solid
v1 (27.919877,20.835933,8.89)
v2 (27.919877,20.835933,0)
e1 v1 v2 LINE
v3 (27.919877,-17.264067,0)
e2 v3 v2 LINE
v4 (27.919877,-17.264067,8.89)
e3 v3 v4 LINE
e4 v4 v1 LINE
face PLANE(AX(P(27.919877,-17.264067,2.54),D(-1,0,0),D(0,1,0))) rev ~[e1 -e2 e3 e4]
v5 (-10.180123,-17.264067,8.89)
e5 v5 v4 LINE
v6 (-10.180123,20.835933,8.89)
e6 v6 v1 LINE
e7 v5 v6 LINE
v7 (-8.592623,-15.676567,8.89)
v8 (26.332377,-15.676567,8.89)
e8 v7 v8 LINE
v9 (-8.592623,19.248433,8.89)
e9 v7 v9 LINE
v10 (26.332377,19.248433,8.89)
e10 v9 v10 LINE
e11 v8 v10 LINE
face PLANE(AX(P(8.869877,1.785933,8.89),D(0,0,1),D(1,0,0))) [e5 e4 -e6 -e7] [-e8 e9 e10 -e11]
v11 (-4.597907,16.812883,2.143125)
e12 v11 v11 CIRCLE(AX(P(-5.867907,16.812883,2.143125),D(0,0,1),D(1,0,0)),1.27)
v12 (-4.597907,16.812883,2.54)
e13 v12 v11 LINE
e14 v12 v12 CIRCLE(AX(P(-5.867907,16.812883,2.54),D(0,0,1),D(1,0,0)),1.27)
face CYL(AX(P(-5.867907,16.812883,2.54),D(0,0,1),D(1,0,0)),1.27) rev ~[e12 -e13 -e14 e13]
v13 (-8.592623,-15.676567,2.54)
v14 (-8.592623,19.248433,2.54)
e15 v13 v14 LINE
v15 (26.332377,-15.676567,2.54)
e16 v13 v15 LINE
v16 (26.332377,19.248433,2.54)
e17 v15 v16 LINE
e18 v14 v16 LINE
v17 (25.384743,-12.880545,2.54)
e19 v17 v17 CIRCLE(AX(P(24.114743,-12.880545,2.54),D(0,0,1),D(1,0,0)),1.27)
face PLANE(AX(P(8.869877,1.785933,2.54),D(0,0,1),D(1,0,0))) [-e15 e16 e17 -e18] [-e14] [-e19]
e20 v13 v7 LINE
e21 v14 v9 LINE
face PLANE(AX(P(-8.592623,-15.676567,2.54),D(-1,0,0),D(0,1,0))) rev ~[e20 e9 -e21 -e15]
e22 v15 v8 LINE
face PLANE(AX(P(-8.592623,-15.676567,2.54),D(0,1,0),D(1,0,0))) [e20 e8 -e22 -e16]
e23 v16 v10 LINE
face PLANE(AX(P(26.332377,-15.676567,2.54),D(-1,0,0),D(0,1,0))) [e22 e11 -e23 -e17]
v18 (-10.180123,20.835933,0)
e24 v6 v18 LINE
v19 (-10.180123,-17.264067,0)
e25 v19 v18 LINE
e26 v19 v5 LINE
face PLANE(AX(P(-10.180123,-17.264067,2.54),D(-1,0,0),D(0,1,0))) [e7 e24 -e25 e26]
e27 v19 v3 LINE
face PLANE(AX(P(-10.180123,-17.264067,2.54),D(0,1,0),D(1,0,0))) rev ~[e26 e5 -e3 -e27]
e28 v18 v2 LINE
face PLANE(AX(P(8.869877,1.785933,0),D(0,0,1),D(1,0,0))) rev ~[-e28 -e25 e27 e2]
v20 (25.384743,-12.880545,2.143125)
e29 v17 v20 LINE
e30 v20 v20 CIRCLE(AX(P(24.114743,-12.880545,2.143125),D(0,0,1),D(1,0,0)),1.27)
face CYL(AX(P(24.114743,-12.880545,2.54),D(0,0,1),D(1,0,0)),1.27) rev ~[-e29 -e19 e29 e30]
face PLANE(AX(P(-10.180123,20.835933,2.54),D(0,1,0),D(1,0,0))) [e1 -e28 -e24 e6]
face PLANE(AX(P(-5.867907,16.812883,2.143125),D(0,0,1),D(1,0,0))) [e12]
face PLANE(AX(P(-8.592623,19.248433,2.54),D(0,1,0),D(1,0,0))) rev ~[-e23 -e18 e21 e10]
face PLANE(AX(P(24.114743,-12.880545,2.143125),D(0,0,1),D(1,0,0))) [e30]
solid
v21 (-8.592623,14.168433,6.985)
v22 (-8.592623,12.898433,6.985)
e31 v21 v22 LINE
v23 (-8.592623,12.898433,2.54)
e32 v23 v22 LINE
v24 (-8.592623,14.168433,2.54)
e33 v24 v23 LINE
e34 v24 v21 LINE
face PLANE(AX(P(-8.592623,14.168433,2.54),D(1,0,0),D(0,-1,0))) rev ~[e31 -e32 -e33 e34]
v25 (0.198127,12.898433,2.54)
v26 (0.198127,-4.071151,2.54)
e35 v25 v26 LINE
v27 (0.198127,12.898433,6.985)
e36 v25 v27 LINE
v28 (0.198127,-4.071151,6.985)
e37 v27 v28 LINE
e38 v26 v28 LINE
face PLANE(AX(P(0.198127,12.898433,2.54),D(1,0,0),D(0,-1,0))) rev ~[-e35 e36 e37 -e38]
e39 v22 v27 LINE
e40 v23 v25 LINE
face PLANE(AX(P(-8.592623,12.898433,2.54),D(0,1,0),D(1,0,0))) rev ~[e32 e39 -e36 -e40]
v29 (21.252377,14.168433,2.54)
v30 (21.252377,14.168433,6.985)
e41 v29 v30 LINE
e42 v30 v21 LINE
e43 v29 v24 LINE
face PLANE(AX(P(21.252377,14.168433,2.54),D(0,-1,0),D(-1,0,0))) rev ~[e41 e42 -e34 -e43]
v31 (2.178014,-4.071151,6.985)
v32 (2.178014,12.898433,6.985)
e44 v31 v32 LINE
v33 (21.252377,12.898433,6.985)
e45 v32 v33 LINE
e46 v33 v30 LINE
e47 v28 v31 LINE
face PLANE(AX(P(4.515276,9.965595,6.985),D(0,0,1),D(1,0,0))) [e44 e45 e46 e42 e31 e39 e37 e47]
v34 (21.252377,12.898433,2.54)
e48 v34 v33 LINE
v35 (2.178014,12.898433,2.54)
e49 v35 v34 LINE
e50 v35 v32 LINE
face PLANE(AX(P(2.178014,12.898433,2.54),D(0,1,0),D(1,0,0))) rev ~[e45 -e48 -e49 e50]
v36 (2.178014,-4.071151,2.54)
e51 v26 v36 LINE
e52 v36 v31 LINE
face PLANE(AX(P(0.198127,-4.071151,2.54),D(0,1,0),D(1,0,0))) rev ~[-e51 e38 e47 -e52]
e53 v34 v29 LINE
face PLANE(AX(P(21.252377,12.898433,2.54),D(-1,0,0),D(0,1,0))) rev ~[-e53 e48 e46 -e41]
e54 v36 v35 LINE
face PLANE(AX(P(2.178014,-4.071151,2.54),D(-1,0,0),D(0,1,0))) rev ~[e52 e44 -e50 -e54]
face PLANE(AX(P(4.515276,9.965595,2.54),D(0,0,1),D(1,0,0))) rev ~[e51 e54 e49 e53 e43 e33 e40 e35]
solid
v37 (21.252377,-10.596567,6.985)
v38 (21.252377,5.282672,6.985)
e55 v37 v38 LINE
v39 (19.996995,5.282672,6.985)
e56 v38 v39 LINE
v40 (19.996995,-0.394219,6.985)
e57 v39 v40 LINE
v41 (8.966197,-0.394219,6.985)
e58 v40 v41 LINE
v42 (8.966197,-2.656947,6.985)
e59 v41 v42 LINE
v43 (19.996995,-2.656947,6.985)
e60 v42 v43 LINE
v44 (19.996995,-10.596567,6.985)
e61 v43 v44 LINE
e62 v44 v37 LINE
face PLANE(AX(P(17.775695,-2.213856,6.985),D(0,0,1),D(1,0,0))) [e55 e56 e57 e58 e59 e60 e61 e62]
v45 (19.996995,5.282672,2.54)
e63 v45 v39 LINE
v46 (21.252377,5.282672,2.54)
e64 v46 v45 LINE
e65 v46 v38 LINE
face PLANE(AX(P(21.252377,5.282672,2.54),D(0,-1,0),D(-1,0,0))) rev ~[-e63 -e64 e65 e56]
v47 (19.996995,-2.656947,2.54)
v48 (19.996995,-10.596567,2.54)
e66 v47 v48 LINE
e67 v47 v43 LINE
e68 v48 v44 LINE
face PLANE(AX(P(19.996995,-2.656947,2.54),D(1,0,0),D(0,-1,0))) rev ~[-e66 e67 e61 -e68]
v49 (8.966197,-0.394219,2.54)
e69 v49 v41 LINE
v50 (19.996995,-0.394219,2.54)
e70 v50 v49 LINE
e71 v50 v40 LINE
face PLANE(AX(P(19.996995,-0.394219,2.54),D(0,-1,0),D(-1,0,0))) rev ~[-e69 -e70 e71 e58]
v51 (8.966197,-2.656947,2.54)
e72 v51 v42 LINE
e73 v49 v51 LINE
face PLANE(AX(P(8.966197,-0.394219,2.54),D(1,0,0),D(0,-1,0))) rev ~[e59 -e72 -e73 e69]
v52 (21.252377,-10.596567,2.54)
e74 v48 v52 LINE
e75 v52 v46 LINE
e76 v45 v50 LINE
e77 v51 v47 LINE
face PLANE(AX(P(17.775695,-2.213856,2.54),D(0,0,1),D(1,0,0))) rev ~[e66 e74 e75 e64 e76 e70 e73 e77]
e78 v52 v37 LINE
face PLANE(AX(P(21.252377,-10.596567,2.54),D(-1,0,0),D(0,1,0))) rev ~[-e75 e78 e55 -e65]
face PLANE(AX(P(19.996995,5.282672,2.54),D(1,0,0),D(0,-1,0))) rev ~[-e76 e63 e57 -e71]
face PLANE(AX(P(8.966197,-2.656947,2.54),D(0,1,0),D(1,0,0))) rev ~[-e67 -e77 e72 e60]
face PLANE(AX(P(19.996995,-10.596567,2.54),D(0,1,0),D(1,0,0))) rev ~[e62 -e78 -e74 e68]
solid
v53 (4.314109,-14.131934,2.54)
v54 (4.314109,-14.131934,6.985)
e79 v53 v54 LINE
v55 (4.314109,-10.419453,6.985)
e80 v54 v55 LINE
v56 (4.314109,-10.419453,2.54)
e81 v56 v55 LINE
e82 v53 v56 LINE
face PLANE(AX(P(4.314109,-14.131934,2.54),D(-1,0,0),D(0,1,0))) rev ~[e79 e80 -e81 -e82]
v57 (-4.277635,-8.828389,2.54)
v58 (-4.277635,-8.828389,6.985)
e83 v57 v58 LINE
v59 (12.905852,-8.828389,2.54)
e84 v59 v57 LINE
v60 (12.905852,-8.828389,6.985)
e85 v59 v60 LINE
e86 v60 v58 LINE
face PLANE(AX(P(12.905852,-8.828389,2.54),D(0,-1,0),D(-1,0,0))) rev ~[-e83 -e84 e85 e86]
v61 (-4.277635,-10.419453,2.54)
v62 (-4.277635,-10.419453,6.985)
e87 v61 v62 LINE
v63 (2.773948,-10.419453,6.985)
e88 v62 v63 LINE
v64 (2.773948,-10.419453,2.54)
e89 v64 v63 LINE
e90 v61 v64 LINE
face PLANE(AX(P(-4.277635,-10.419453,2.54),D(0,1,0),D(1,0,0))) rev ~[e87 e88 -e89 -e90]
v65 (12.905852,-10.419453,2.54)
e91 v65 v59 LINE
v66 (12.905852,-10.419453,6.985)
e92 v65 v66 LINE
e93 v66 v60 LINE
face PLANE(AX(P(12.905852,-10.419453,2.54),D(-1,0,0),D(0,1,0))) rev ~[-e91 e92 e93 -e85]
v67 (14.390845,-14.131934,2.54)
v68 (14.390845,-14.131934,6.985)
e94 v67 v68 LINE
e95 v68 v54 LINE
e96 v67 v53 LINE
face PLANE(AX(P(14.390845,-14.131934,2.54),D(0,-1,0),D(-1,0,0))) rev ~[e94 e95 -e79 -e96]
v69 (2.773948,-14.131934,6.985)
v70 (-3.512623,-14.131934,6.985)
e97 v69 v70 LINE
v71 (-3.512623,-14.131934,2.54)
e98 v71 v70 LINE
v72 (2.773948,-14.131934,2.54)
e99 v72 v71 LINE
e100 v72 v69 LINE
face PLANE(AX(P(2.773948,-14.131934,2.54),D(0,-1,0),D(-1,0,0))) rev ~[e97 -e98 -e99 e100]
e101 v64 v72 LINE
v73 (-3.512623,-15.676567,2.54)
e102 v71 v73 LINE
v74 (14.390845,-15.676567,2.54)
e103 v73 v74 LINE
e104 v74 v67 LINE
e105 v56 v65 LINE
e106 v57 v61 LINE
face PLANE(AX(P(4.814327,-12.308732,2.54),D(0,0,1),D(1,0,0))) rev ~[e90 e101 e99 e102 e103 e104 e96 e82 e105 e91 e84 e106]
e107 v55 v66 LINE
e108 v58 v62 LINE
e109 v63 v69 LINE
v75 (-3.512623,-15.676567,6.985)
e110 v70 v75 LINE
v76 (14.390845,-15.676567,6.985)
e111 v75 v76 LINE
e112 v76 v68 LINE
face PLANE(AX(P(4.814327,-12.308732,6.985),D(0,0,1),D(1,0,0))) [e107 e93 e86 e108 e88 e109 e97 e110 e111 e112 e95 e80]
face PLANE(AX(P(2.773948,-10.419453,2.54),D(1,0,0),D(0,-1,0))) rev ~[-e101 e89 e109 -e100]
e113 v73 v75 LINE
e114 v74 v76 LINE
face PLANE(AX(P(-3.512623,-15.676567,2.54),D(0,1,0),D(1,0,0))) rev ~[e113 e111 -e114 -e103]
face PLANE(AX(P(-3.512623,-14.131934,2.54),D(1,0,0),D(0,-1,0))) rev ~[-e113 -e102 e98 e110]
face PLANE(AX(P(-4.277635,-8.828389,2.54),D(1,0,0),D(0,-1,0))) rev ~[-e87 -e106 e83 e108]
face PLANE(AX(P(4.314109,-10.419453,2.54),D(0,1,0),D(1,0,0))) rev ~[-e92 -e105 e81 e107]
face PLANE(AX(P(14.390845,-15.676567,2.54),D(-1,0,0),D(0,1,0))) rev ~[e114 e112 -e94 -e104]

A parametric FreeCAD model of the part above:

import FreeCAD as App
import Part
import Sketcher
from FreeCAD import Vector
Q = App.Units.Quantity


def add_polygon(sketch, points):
    """Adds a closed chain of lines whose ends are joined by coincident constraints."""
    first, n = sketch.GeometryCount, len(points)
    for a, b in zip(points, points[1:] + points[:1]):
        sketch.addGeometry(Part.LineSegment(App.Vector(*a, 0), App.Vector(*b, 0)), False)
    for i in range(n):
        sketch.addConstraint(Sketcher.Constraint("Coincident", first + i, 2, first + (i + 1) % n, 1))

doc = App.newDocument("Part")
body = doc.addObject("PartDesign::Body", "Body")

# Sketch on XY plane
sketch1 = body.newObject("Sketcher::SketchObject", "Sketch")
sketch1.AttachmentSupport = (doc.getObject("XY_Plane"), [""])
sketch1.MapMode = "FlatFace"
add_polygon(sketch1, [(-10.180123, 20.835933), (-10.180123, -17.264067), (27.919877, -17.264067), (27.919877, 20.835933)])  # lines 0-3
sketch1.addConstraint(Sketcher.Constraint("Vertical", 0))
sketch1.addConstraint(Sketcher.Constraint("Horizontal", 1))
sketch1.addConstraint(Sketcher.Constraint("Vertical", 2))
sketch1.addConstraint(Sketcher.Constraint("Horizontal", 3))
sketch1.addConstraint(Sketcher.Constraint("Equal", 3, 0))
sketch1.addConstraint(Sketcher.Constraint("DistanceX", 1, 1, 1, 2, Q("1.5 in")))
sketch1.addConstraint(Sketcher.Constraint("DistanceX", 0, 2, -1, 1, 10.180123))
sketch1.addConstraint(Sketcher.Constraint("DistanceY", 0, 2, -1, 1, 17.264067))
pad1 = body.newObject("PartDesign::Pad", "Pad")
pad1.Profile = sketch1
pad1.Length = Q("0.1 in")

# Sketch on XY plane
sketch2 = body.newObject("Sketcher::SketchObject", "Sketch001")
sketch2.AttachmentSupport = (doc.getObject("XY_Plane"), [""])
sketch2.MapMode = "FlatFace"
sketch2.AttachmentOffset = App.Placement(Vector(0, 0, 0.1 * 25.4), App.Rotation())
add_polygon(sketch2, [(-10.180123, 20.835933), (-10.180123, -17.264067), (27.919877, -17.264067), (27.919877, 20.835933)])  # lines 0-3
add_polygon(sketch2, [(26.332377, -15.676567), (-8.592623, -15.676567), (-8.592623, 19.248433), (26.332377, 19.248433)])  # lines 4-7
sketch2.addConstraint(Sketcher.Constraint("Vertical", 0))
sketch2.addConstraint(Sketcher.Constraint("Horizontal", 1))
sketch2.addConstraint(Sketcher.Constraint("Vertical", 2))
sketch2.addConstraint(Sketcher.Constraint("Horizontal", 3))
sketch2.addConstraint(Sketcher.Constraint("Horizontal", 4))
sketch2.addConstraint(Sketcher.Constraint("Vertical", 5))
sketch2.addConstraint(Sketcher.Constraint("Horizontal", 6))
sketch2.addConstraint(Sketcher.Constraint("Vertical", 7))
sketch2.addConstraint(Sketcher.Constraint("Equal", 3, 0))
sketch2.addConstraint(Sketcher.Constraint("Equal", 6, 5))
sketch2.addConstraint(Sketcher.Constraint("DistanceX", 1, 1, 1, 2, Q("1.5 in")))
sketch2.addConstraint(Sketcher.Constraint("DistanceX", 4, 2, 4, 1, Q("1.375 in")))
sketch2.addConstraint(Sketcher.Constraint("DistanceX", 0, 2, 4, 2, Q("0.0625 in")))
sketch2.addConstraint(Sketcher.Constraint("DistanceY", 0, 2, 4, 2, Q("0.0625 in")))
sketch2.addConstraint(Sketcher.Constraint("DistanceX", 0, 2, -1, 1, 10.180123))
sketch2.addConstraint(Sketcher.Constraint("DistanceY", 0, 2, -1, 1, 17.264067))
pad2 = body.newObject("PartDesign::Pad", "Pad001")
pad2.Profile = sketch2
pad2.Length = Q("0.25 in")

# Sketch on XY plane
sketch3 = body.newObject("Sketcher::SketchObject", "Sketch002")
sketch3.AttachmentSupport = (doc.getObject("XY_Plane"), [""])
sketch3.MapMode = "FlatFace"
sketch3.AttachmentOffset = App.Placement(Vector(0, 0, 0.1 * 25.4), App.Rotation())
sketch3.addGeometry(Part.Circle(Vector(24.114743, -12.880545, 0), Vector(0, 0, 1), 1.27), False)
sketch3.addGeometry(Part.Circle(Vector(-5.867907, 16.812883, 0), Vector(0, 0, 1), 1.27), False)
sketch3.addConstraint(Sketcher.Constraint("Equal", 0, 1))
sketch3.addConstraint(Sketcher.Constraint("Diameter", 0, Q("0.1 in")))
sketch3.addConstraint(Sketcher.Constraint("DistanceX", 1, 3, 0, 3, 29.98265))
sketch3.addConstraint(Sketcher.Constraint("DistanceX", -1, 1, 0, 3, 24.114743))
sketch3.addConstraint(Sketcher.Constraint("DistanceY", 0, 3, -1, 1, 12.880545))
sketch3.addConstraint(Sketcher.Constraint("DistanceY", -1, 1, 1, 3, 16.812883))
pocket1 = body.newObject("PartDesign::Pocket", "Pocket")
pocket1.Profile = sketch3
pocket1.Length = Q("0.015625 in")
body2 = doc.addObject("PartDesign::Body", "Body001")
body2.AllowCompound = True

# Sketch on XY plane
sketch4 = body2.newObject("Sketcher::SketchObject", "Sketch003")
sketch4.AttachmentSupport = (doc.getObject("XY_Plane001"), [""])
sketch4.MapMode = "FlatFace"
sketch4.AttachmentOffset = App.Placement(Vector(0, 0, 0.1 * 25.4), App.Rotation())
add_polygon(sketch4, [(21.252377, 14.168433), (-8.592623, 14.168433), (-8.592623, 12.898433), (0.198127, 12.898433), (0.198127, -4.071151), (2.178014, -4.071151), (2.178014, 12.898433), (21.252377, 12.898433)])  # lines 0-7
add_polygon(sketch4, [(21.252377, -10.596567), (21.252377, 5.282672), (19.996995, 5.282672), (19.996995, -0.394219), (8.966197, -0.394219), (8.966197, -2.656947), (19.996995, -2.656947), (19.996995, -10.596567)])  # lines 8-15
add_polygon(sketch4, [(-3.512623, -14.131934), (-3.512623, -15.676567), (14.390845, -15.676567), (14.390845, -14.131934), (4.314109, -14.131934), (4.314109, -10.419453), (12.905852, -10.419453), (12.905852, -8.828389), (-4.277635, -8.828389), (-4.277635, -10.419453), (2.773948, -10.419453), (2.773948, -14.131934)])  # lines 16-27
sketch4.addConstraint(Sketcher.Constraint("Horizontal", 0))
sketch4.addConstraint(Sketcher.Constraint("Vertical", 1))
sketch4.addConstraint(Sketcher.Constraint("Horizontal", 2))
sketch4.addConstraint(Sketcher.Constraint("Vertical", 3))
sketch4.addConstraint(Sketcher.Constraint("Horizontal", 4))
sketch4.addConstraint(Sketcher.Constraint("Vertical", 5))
sketch4.addConstraint(Sketcher.Constraint("Horizontal", 6))
sketch4.addConstraint(Sketcher.Constraint("Vertical", 7))
sketch4.addConstraint(Sketcher.Constraint("Vertical", 8))
sketch4.addConstraint(Sketcher.Constraint("Horizontal", 9))
sketch4.addConstraint(Sketcher.Constraint("Vertical", 10))
sketch4.addConstraint(Sketcher.Constraint("Horizontal", 11))
sketch4.addConstraint(Sketcher.Constraint("Vertical", 12))
sketch4.addConstraint(Sketcher.Constraint("Horizontal", 13))
sketch4.addConstraint(Sketcher.Constraint("Vertical", 14))
sketch4.addConstraint(Sketcher.Constraint("Horizontal", 15))
sketch4.addConstraint(Sketcher.Constraint("Vertical", 16))
sketch4.addConstraint(Sketcher.Constraint("Horizontal", 17))
sketch4.addConstraint(Sketcher.Constraint("Vertical", 18))
sketch4.addConstraint(Sketcher.Constraint("Horizontal", 19))
sketch4.addConstraint(Sketcher.Constraint("Vertical", 20))
sketch4.addConstraint(Sketcher.Constraint("Horizontal", 21))
sketch4.addConstraint(Sketcher.Constraint("Vertical", 22))
sketch4.addConstraint(Sketcher.Constraint("Horizontal", 23))
sketch4.addConstraint(Sketcher.Constraint("Vertical", 24))
sketch4.addConstraint(Sketcher.Constraint("Horizontal", 25))
sketch4.addConstraint(Sketcher.Constraint("Vertical", 26))
sketch4.addConstraint(Sketcher.Constraint("Horizontal", 27))
sketch4.addConstraint(Sketcher.Constraint("Horizontal", 2, 2, 5, 2))
sketch4.addConstraint(Sketcher.Constraint("Horizontal", 21, 2, 24, 2))
sketch4.addConstraint(Sketcher.Constraint("Horizontal", 19, 2, 26, 2))
sketch4.addConstraint(Sketcher.Constraint("Vertical", 7, 2, 8, 2))
sketch4.addConstraint(Sketcher.Constraint("Vertical", 10, 2, 13, 2))
sketch4.addConstraint(Sketcher.Constraint("DistanceY", 1, 2, 1, 1, Q("0.05 in")))
sketch4.addConstraint(Sketcher.Constraint("DistanceY", 16, 2, 14, 2, Q("0.2 in")))
sketch4.addConstraint(Sketcher.Constraint("DistanceX", 0, 2, 0, 1, Q("1.175 in")))
sketch4.addConstraint(Sketcher.Constraint("DistanceX", -1, 1, 11, 2, Q("0.3529999 in")))
sketch4.addConstraint(Sketcher.Constraint("DistanceX", 2, 1, 2, 2, 8.79075))
sketch4.addConstraint(Sketcher.Constraint("DistanceX", 17, 1, 17, 2, 17.903468))
sketch4.addConstraint(Sketcher.Constraint("DistanceX", 27, 2, 27, 1, 6.286571))
sketch4.addConstraint(Sketcher.Constraint("DistanceY", 8, 1, 8, 2, 15.879239))
sketch4.addConstraint(Sketcher.Constraint("DistanceY", 10, 2, 10, 1, 5.676891))
sketch4.addConstraint(Sketcher.Constraint("DistanceY", 12, 2, 12, 1, 2.262728))
sketch4.addConstraint(Sketcher.Constraint("DistanceY", 20, 1, 20, 2, 3.712481))
sketch4.addConstraint(Sketcher.Constraint("DistanceX", 4, 1, 4, 2, 1.979887))
sketch4.addConstraint(Sketcher.Constraint("DistanceX", 9, 2, 9, 1, 1.255382))
sketch4.addConstraint(Sketcher.Constraint("DistanceX", 11, 2, 11, 1, 11.030798))
sketch4.addConstraint(Sketcher.Constraint("DistanceX", 19, 2, 19, 1, 10.076736))
sketch4.addConstraint(Sketcher.Constraint("DistanceX", 21, 1, 21, 2, 8.591743))
sketch4.addConstraint(Sketcher.Constraint("DistanceX", 23, 2, 23, 1, 17.183487))
sketch4.addConstraint(Sketcher.Constraint("DistanceY", 3, 2, 3, 1, 16.969584))
sketch4.addConstraint(Sketcher.Constraint("DistanceY", 16, 2, 16, 1, 1.544633))
sketch4.addConstraint(Sketcher.Constraint("DistanceY", 22, 1, 22, 2, 1.591064))
sketch4.addConstraint(Sketcher.Constraint("DistanceY", 3, 2, -1, 1, 4.071151))
sketch4.addConstraint(Sketcher.Constraint("DistanceY", -1, 1, 8, 2, 5.282672))
sketch4.addConstraint(Sketcher.Constraint("DistanceX", -1, 1, 19, 2, 4.314109))
pad3 = body2.newObject("PartDesign::Pad", "Pad002")
pad3.Profile = sketch4
pad3.Length = Q("0.175 in")

doc.recompute()
